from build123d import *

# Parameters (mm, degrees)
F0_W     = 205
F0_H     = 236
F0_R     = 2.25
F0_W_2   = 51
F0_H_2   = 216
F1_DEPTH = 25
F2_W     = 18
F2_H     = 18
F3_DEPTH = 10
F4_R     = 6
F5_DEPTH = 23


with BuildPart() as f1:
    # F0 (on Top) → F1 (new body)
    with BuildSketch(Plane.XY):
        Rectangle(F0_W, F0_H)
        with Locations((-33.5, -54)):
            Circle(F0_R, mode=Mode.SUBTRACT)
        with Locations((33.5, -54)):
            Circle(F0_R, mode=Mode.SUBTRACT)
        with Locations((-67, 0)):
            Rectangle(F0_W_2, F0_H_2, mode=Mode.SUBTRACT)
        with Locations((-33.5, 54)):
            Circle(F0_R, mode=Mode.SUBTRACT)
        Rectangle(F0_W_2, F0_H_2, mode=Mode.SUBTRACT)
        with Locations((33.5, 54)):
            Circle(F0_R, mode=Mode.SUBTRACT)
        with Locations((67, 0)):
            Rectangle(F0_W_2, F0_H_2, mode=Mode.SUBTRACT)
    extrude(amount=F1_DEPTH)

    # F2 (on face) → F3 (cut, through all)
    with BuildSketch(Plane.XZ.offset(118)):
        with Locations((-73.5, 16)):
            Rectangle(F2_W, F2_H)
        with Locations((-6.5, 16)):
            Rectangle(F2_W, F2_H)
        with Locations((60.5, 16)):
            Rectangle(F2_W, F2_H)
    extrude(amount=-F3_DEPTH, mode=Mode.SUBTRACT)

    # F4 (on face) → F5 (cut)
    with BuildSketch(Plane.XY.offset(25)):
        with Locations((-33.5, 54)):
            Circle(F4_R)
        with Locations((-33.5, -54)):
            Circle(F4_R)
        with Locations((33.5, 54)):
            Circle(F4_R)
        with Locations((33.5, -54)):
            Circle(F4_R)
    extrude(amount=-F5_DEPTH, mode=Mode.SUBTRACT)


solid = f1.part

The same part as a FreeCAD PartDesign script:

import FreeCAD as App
import Part
import Sketcher

doc = App.newDocument("Part")
params = doc.addObject("Spreadsheet::Sheet", "Params")
for row, (alias, value) in enumerate([
    ("sketch1_diameter", "4.5 mm"),
    ("sketch1_width", "205 mm"),
    ("sketch1_width2", "51 mm"),
    ("sketch1_height", "236 mm"),
    ("sketch1_height2", "216 mm"),
    ("pad1_length", "25 mm"),
    ("sketch2_width", "18 mm"),
    ("pocket1_length", "10 mm"),
    ("sketch3_diameter", "12 mm"),
    ("pocket2_length", "23 mm"),
], start=1):
    params.set(f"A{row}", alias)
    params.set(f"B{row}", "=" + value)
    params.setAlias(f"B{row}", alias)

body = doc.addObject("PartDesign::Body", "Body")

# Sketch on XY plane
sketch1 = body.newObject("Sketcher::SketchObject", "Sketch")
sketch1.AttachmentSupport = (doc.getObject("XY_Plane"), [""])
sketch1.MapMode = "FlatFace"
sketch1.addGeometry([
    Part.LineSegment(App.Vector(-102.5, 118, 0), App.Vector(-102.5, -118, 0)),  # 0
    Part.LineSegment(App.Vector(-102.5, -118, 0), App.Vector(102.5, -118, 0)),  # 1
    Part.LineSegment(App.Vector(102.5, -118, 0), App.Vector(102.5, 118, 0)),  # 2
    Part.LineSegment(App.Vector(102.5, 118, 0), App.Vector(-102.5, 118, 0)),  # 3
    Part.Circle(App.Vector(-33.5, -54, 0), App.Vector(0, 0, 1), 2.2),  # 4
    Part.Circle(App.Vector(33.5, -54, 0), App.Vector(0, 0, 1), 2.2),  # 5
    Part.LineSegment(App.Vector(-41.5, -108, 0), App.Vector(-92.5, -108, 0)),  # 6
    Part.LineSegment(App.Vector(-92.5, -108, 0), App.Vector(-92.5, 108, 0)),  # 7
    Part.LineSegment(App.Vector(-92.5, 108, 0), App.Vector(-41.5, 108, 0)),  # 8
    Part.LineSegment(App.Vector(-41.5, 108, 0), App.Vector(-41.5, -108, 0)),  # 9
    Part.Circle(App.Vector(-33.5, 54, 0), App.Vector(0, 0, 1), 2.2),  # 10
    Part.LineSegment(App.Vector(25.5, -108, 0), App.Vector(-25.5, -108, 0)),  # 11
    Part.LineSegment(App.Vector(-25.5, -108, 0), App.Vector(-25.5, 108, 0)),  # 12
    Part.LineSegment(App.Vector(-25.5, 108, 0), App.Vector(25.5, 108, 0)),  # 13
    Part.LineSegment(App.Vector(25.5, 108, 0), App.Vector(25.5, -108, 0)),  # 14
    Part.LineSegment(App.Vector(92.5, -108, 0), App.Vector(41.5, -108, 0)),  # 15
    Part.LineSegment(App.Vector(41.5, -108, 0), App.Vector(41.5, 108, 0)),  # 16
    Part.LineSegment(App.Vector(41.5, 108, 0), App.Vector(92.5, 108, 0)),  # 17
    Part.LineSegment(App.Vector(92.5, 108, 0), App.Vector(92.5, -108, 0)),  # 18
    Part.Circle(App.Vector(33.5, 54, 0), App.Vector(0, 0, 1), 2.2),  # 19
], False)
sketch1.addConstraint([
    Sketcher.Constraint("Coincident", 0, 2, 1, 1),
    Sketcher.Constraint("Coincident", 1, 2, 2, 1),
    Sketcher.Constraint("Coincident", 2, 2, 3, 1),
    Sketcher.Constraint("Coincident", 3, 2, 0, 1),
    Sketcher.Constraint("Coincident", 6, 2, 7, 1),
    Sketcher.Constraint("Coincident", 7, 2, 8, 1),
    Sketcher.Constraint("Coincident", 8, 2, 9, 1),
    Sketcher.Constraint("Coincident", 9, 2, 6, 1),
    Sketcher.Constraint("Coincident", 11, 2, 12, 1),
    Sketcher.Constraint("Coincident", 12, 2, 13, 1),
    Sketcher.Constraint("Coincident", 13, 2, 14, 1),
    Sketcher.Constraint("Coincident", 14, 2, 11, 1),
    Sketcher.Constraint("Coincident", 15, 2, 16, 1),
    Sketcher.Constraint("Coincident", 16, 2, 17, 1),
    Sketcher.Constraint("Coincident", 17, 2, 18, 1),
    Sketcher.Constraint("Coincident", 18, 2, 15, 1),
    Sketcher.Constraint("Vertical", 0),
    Sketcher.Constraint("Horizontal", 1),
    Sketcher.Constraint("Vertical", 2),
    Sketcher.Constraint("Horizontal", 3),
    Sketcher.Constraint("Horizontal", 6),
    Sketcher.Constraint("Vertical", 7),
    Sketcher.Constraint("Horizontal", 8),
    Sketcher.Constraint("Vertical", 9),
    Sketcher.Constraint("Horizontal", 11),
    Sketcher.Constraint("Vertical", 12),
    Sketcher.Constraint("Horizontal", 13),
    Sketcher.Constraint("Vertical", 14),
    Sketcher.Constraint("Horizontal", 15),
    Sketcher.Constraint("Vertical", 16),
    Sketcher.Constraint("Horizontal", 17),
    Sketcher.Constraint("Vertical", 18),
    Sketcher.Constraint("Equal", 4, 5),
    Sketcher.Constraint("Equal", 5, 10),
    Sketcher.Constraint("Equal", 10, 19),
    Sketcher.Constraint("Symmetric", 5, 3, 10, 3, -1, 1),
    Sketcher.Constraint("Symmetric", 4, 3, 19, 3, -1, 1),
    Sketcher.Constraint("Symmetric", 0, 2, 2, 2, -1, 1),
    Sketcher.Constraint("Symmetric", 11, 2, 13, 2, -1, 1),
    Sketcher.Constraint("Symmetric", 8, 2, 15, 2, -1, 1),
    Sketcher.Constraint("Symmetric", 6, 2, 17, 2, -1, 1),
    Sketcher.Constraint("Symmetric", 4, 3, 5, 3, -2),
    Sketcher.Constraint("Horizontal", 9, 2, 11, 2),
    Sketcher.Constraint("Horizontal", 8, 2, 12, 2),
    Sketcher.Constraint("Equal", 8, 11),
    Sketcher.Constraint("Diameter", 4, 4.5),
    Sketcher.Constraint("DistanceX", 1, 1, 1, 2, 205.0),
    Sketcher.Constraint("DistanceX", 6, 2, 6, 1, 51.0),
    Sketcher.Constraint("DistanceY", 0, 2, 0, 1, 236.0),
    Sketcher.Constraint("DistanceY", 7, 1, 7, 2, 216.0),
    Sketcher.Constraint("DistanceY", 4, 3, -1, 1, 54.0),
    Sketcher.Constraint("DistanceX", 4, 3, 5, 3, 67.0),
    Sketcher.Constraint("DistanceX", 0, 2, 6, 2, 10.0),
])
sketch1.setExpression("Constraints[45]", "Params.sketch1_diameter")
sketch1.setExpression("Constraints[46]", "Params.sketch1_width")
sketch1.setExpression("Constraints[47]", "Params.sketch1_width2")
sketch1.setExpression("Constraints[48]", "Params.sketch1_height")
sketch1.setExpression("Constraints[49]", "Params.sketch1_height2")
pad1 = body.newObject("PartDesign::Pad", "Pad")
pad1.Profile = sketch1
pad1.setExpression("Length", "Params.pad1_length")

# Sketch on XZ plane
sketch2 = body.newObject("Sketcher::SketchObject", "Sketch001")
sketch2.AttachmentSupport = (doc.getObject("XZ_Plane"), [""])
sketch2.MapMode = "FlatFace"
sketch2.AttachmentOffset = App.Placement(App.Vector(0, 0, 118), App.Rotation())
sketch2.addGeometry([
    Part.LineSegment(App.Vector(-82, 25, 0), App.Vector(-82, 7, 0)),  # 0
    Part.LineSegment(App.Vector(-82, 7, 0), App.Vector(-64, 7, 0)),  # 1
    Part.LineSegment(App.Vector(-64, 7, 0), App.Vector(-64, 25, 0)),  # 2
    Part.LineSegment(App.Vector(-64, 25, 0), App.Vector(-82, 25, 0)),  # 3
    Part.LineSegment(App.Vector(-16, 25, 0), App.Vector(-16, 7, 0)),  # 4
    Part.LineSegment(App.Vector(-16, 7, 0), App.Vector(2, 7, 0)),  # 5
    Part.LineSegment(App.Vector(2, 7, 0), App.Vector(2, 25, 0)),  # 6
    Part.LineSegment(App.Vector(2, 25, 0), App.Vector(-16, 25, 0)),  # 7
    Part.LineSegment(App.Vector(52, 25, 0), App.Vector(52, 7, 0)),  # 8
    Part.LineSegment(App.Vector(52, 7, 0), App.Vector(70, 7, 0)),  # 9
    Part.LineSegment(App.Vector(70, 7, 0), App.Vector(70, 25, 0)),  # 10
    Part.LineSegment(App.Vector(70, 25, 0), App.Vector(52, 25, 0)),  # 11
], False)
sketch2.addConstraint([
    Sketcher.Constraint("Coincident", 0, 2, 1, 1),
    Sketcher.Constraint("Coincident", 1, 2, 2, 1),
    Sketcher.Constraint("Coincident", 2, 2, 3, 1),
    Sketcher.Constraint("Coincident", 3, 2, 0, 1),
    Sketcher.Constraint("Coincident", 4, 2, 5, 1),
    Sketcher.Constraint("Coincident", 5, 2, 6, 1),
    Sketcher.Constraint("Coincident", 6, 2, 7, 1),
    Sketcher.Constraint("Coincident", 7, 2, 4, 1),
    Sketcher.Constraint("Coincident", 8, 2, 9, 1),
    Sketcher.Constraint("Coincident", 9, 2, 10, 1),
    Sketcher.Constraint("Coincident", 10, 2, 11, 1),
    Sketcher.Constraint("Coincident", 11, 2, 8, 1),
    Sketcher.Constraint("Vertical", 0),
    Sketcher.Constraint("Horizontal", 1),
    Sketcher.Constraint("Vertical", 2),
    Sketcher.Constraint("Horizontal", 3),
    Sketcher.Constraint("Vertical", 4),
    Sketcher.Constraint("Horizontal", 5),
    Sketcher.Constraint("Vertical", 6),
    Sketcher.Constraint("Horizontal", 7),
    Sketcher.Constraint("Vertical", 8),
    Sketcher.Constraint("Horizontal", 9),
    Sketcher.Constraint("Vertical", 10),
    Sketcher.Constraint("Horizontal", 11),
    Sketcher.Constraint("Horizontal", 1, 2, 4, 2),
    Sketcher.Constraint("Horizontal", 3, 2, 6, 2),
    Sketcher.Constraint("Horizontal", 5, 2, 8, 2),
    Sketcher.Constraint("Horizontal", 7, 2, 10, 2),
    Sketcher.Constraint("Equal", 3, 5),
    Sketcher.Constraint("Equal", 7, 9),
    Sketcher.Constraint("Equal", 11, 0),
    Sketcher.Constraint("DistanceX", 1, 1, 1, 2, 18.0),
    Sketcher.Constraint("DistanceY", -1, 1, 0, 2, 7.0),
    Sketcher.Constraint("DistanceX", 1, 2, 4, 2, 49.0),
    Sketcher.Constraint("DistanceX", 5, 2, 8, 2, 49.0),
    Sketcher.Constraint("DistanceX", 0, 2, -1, 1, 82.5),
])
sketch2.setExpression("Constraints[31]", "Params.sketch2_width")
pocket1 = body.newObject("PartDesign::Pocket", "Pocket")
pocket1.Profile = sketch2
pocket1.setExpression("Length", "Params.pocket1_length")

# Sketch on XY plane
sketch3 = body.newObject("Sketcher::SketchObject", "Sketch002")
sketch3.AttachmentSupport = (doc.getObject("XY_Plane"), [""])
sketch3.MapMode = "FlatFace"
sketch3.AttachmentOffset = App.Placement(App.Vector(0, 0, 25), App.Rotation())
sketch3.addGeometry([
    Part.Circle(App.Vector(-34, 54, 0), App.Vector(0, 0, 1), 6),
    Part.Circle(App.Vector(-34, -54, 0), App.Vector(0, 0, 1), 6),
    Part.Circle(App.Vector(34, 54, 0), App.Vector(0, 0, 1), 6),
    Part.Circle(App.Vector(34, -54, 0), App.Vector(0, 0, 1), 6),
], False)
sketch3.addConstraint([
    Sketcher.Constraint("Equal", 0, 1),
    Sketcher.Constraint("Equal", 1, 2),
    Sketcher.Constraint("Equal", 2, 3),
    Sketcher.Constraint("Symmetric", 1, 3, 2, 3, -1, 1),
    Sketcher.Constraint("Symmetric", 0, 3, 3, 3, -1, 1),
    Sketcher.Constraint("Symmetric", 0, 3, 2, 3, -2),
    Sketcher.Constraint("Diameter", 0, 12.0),
    Sketcher.Constraint("DistanceY", -1, 1, 0, 3, 54.0),
    Sketcher.Constraint("DistanceX", 0, 3, 2, 3, 67.0),
])
sketch3.setExpression("Constraints[6]", "Params.sketch3_diameter")
pocket2 = body.newObject("PartDesign::Pocket", "Pocket001")
pocket2.Profile = sketch3
pocket2.setExpression("Length", "Params.pocket2_length")

doc.recompute()
